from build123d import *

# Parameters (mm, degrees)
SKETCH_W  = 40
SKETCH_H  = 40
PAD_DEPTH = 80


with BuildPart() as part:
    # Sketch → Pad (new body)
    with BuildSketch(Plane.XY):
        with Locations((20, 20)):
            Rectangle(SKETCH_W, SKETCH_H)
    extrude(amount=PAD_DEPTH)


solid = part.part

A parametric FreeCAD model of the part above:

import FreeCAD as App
import Part
import Sketcher
from FreeCAD import Vector
Q = App.Units.Quantity


def add_polygon(sketch, points):
    """Adds a closed chain of lines whose ends are joined by coincident constraints."""
    first, n = sketch.GeometryCount, len(points)
    for a, b in zip(points, points[1:] + points[:1]):
        sketch.addGeometry(Part.LineSegment(App.Vector(*a, 0), App.Vector(*b, 0)), False)
    for i in range(n):
        sketch.addConstraint(Sketcher.Constraint("Coincident", first + i, 2, first + (i + 1) % n, 1))

doc = App.newDocument("Part")
body = doc.addObject("PartDesign::Body", "Body")

# Sketch on XY plane
sketch1 = body.newObject("Sketcher::SketchObject", "Sketch")
sketch1.AttachmentSupport = (doc.getObject("XY_Plane"), [""])
sketch1.MapMode = "FlatFace"
add_polygon(sketch1, [(0, 40), (0, 0), (40, 0), (40, 40)])  # lines 0-3
sketch1.addConstraint([
    Sketcher.Constraint("Vertical", 0),
    Sketcher.Constraint("Horizontal", 1),
    Sketcher.Constraint("Vertical", 2),
    Sketcher.Constraint("Horizontal", 3),
    Sketcher.Constraint("Coincident", 0, 2, -1, 1),
    Sketcher.Constraint("Equal", 3, 0),
    Sketcher.Constraint("DistanceX", 1, 1, 1, 2, Q("40 mm")),
])
pad1 = body.newObject("PartDesign::Pad", "Pad")
pad1.Profile = sketch1
pad1.Length = 80

doc.recompute()
